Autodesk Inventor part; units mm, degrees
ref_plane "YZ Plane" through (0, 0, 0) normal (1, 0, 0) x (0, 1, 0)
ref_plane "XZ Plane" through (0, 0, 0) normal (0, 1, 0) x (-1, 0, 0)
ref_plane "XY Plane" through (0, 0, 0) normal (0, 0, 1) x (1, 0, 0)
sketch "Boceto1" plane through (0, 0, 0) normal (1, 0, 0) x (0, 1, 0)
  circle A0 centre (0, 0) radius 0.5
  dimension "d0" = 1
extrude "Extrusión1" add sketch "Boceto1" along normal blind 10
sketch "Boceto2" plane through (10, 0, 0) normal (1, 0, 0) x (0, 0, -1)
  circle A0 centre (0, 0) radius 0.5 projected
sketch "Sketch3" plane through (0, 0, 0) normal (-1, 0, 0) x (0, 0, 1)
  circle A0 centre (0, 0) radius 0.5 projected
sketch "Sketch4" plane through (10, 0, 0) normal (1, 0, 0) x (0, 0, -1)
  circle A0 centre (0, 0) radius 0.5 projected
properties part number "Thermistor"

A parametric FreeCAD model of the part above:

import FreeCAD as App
import Part
import Sketcher

V = App.Vector
Q = App.Units.Quantity

doc = App.newDocument("Part")
body = doc.addObject("PartDesign::Body", "Body")

sketch1 = body.newObject("Sketcher::SketchObject", "Sketch")
sketch1.AttachmentSupport = (doc.getObject("YZ_Plane"), [""])
sketch1.MapMode = "FlatFace"
sketch1.addGeometry(Part.Circle(V(0, 0, 0), V(0, 0, 1), 0.5), False)
sketch1.addConstraint(Sketcher.Constraint("Coincident", 0, 3, -1, 1))
sketch1.addConstraint(Sketcher.Constraint("Diameter", 0, Q("1 mm")))
pad1 = body.newObject("PartDesign::Pad", "Pad")
pad1.Profile = sketch1
pad1.Length = 10

doc.recompute()
